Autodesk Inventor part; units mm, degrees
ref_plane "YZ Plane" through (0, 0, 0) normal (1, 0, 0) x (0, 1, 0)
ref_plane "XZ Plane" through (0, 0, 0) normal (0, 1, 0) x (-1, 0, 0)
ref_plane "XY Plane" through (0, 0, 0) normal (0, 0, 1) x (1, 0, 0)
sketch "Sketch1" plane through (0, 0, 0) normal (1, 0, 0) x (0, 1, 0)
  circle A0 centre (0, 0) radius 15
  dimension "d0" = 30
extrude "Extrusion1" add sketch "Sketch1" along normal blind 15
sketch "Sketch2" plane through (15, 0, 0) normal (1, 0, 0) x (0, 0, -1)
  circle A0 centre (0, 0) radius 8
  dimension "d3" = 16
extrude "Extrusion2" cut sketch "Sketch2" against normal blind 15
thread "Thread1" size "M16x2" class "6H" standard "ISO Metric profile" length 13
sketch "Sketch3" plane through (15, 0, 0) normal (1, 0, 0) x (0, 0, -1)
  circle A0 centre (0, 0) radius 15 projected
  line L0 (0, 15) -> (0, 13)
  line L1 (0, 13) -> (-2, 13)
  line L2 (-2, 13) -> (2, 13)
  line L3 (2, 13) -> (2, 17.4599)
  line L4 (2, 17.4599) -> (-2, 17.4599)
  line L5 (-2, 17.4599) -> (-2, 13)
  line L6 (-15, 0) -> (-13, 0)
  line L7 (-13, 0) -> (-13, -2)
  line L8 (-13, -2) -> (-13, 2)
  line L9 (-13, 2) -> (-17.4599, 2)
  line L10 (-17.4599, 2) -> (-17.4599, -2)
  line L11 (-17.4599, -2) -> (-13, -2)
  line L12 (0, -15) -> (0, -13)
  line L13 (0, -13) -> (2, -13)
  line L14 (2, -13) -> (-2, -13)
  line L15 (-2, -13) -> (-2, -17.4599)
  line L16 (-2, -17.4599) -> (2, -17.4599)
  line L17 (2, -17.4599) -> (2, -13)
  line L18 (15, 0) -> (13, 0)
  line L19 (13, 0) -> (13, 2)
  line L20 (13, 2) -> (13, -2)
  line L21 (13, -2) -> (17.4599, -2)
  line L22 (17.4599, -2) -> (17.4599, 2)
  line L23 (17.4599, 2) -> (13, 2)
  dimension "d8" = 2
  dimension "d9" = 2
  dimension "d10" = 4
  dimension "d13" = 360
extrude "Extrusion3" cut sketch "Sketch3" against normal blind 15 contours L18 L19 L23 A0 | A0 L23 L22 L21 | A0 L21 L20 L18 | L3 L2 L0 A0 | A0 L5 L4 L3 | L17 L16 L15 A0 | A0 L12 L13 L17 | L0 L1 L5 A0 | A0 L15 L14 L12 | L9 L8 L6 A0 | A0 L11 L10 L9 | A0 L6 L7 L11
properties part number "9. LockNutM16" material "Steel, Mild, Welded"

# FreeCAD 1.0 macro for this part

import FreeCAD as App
import Part
import Sketcher

V = App.Vector
Q = App.Units.Quantity


def add_polygon(sketch, points):
    """Adds a closed chain of lines whose ends are joined by coincident constraints."""
    first, n = sketch.GeometryCount, len(points)
    for a, b in zip(points, points[1:] + points[:1]):
        sketch.addGeometry(Part.LineSegment(App.Vector(*a, 0), App.Vector(*b, 0)), False)
    for i in range(n):
        sketch.addConstraint(Sketcher.Constraint("Coincident", first + i, 2, first + (i + 1) % n, 1))

doc = App.newDocument("Part")
body = doc.addObject("PartDesign::Body", "Body")

sketch1 = body.newObject("Sketcher::SketchObject", "Sketch")
sketch1.AttachmentSupport = (doc.getObject("YZ_Plane"), [""])
sketch1.MapMode = "FlatFace"
sketch1.addGeometry(Part.Circle(V(0, 0, 0), V(0, 0, 1), 15), False)
sketch1.addConstraint(Sketcher.Constraint("Coincident", 0, 3, -1, 1))
sketch1.addConstraint(Sketcher.Constraint("Diameter", 0, Q("30 mm")))
pad1 = body.newObject("PartDesign::Pad", "Pad")
pad1.Profile = sketch1
pad1.Length = 15

sketch2 = body.newObject("Sketcher::SketchObject", "Sketch001")
sketch2.AttachmentSupport = (doc.getObject("YZ_Plane"), [""])
sketch2.MapMode = "FlatFace"
sketch2.AttachmentOffset = App.Placement(V(0, 0, 15), App.Rotation())
sketch2.addGeometry(Part.Circle(V(0, 0, 0), V(0, 0, 1), 8), False)
sketch2.addConstraint(Sketcher.Constraint("Coincident", 0, 3, -1, 1))
sketch2.addConstraint(Sketcher.Constraint("Diameter", 0, Q("16 mm")))
pocket1 = body.newObject("PartDesign::Pocket", "Pocket")
pocket1.Profile = sketch2
pocket1.Length = 15

sketch3 = body.newObject("Sketcher::SketchObject", "Sketch002")
sketch3.AttachmentSupport = (doc.getObject("YZ_Plane"), [""])
sketch3.MapMode = "FlatFace"
sketch3.AttachmentOffset = App.Placement(V(0, 0, 15), App.Rotation())
add_polygon(sketch3, [(2, -13), (-2, -13), (-2, -17.5), (2, -17.5)])
add_polygon(sketch3, [(13, -2), (17.5, -2), (17.5, 2), (13, 2)])
add_polygon(sketch3, [(-17.5, -2), (-13, -2), (-13, 2), (-17.5, 2)])
add_polygon(sketch3, [(2, 13), (2, 17.5), (-2, 17.5), (-2, 13)])
sketch3.addConstraint(Sketcher.Constraint("Horizontal", 0))
sketch3.addConstraint(Sketcher.Constraint("Vertical", 1))
sketch3.addConstraint(Sketcher.Constraint("Horizontal", 2))
sketch3.addConstraint(Sketcher.Constraint("Vertical", 3))
sketch3.addConstraint(Sketcher.Constraint("Horizontal", 4))
sketch3.addConstraint(Sketcher.Constraint("Vertical", 5))
sketch3.addConstraint(Sketcher.Constraint("Horizontal", 6))
sketch3.addConstraint(Sketcher.Constraint("Vertical", 7))
sketch3.addConstraint(Sketcher.Constraint("Horizontal", 8))
sketch3.addConstraint(Sketcher.Constraint("Vertical", 9))
sketch3.addConstraint(Sketcher.Constraint("Horizontal", 10))
sketch3.addConstraint(Sketcher.Constraint("Vertical", 11))
sketch3.addConstraint(Sketcher.Constraint("Vertical", 12))
sketch3.addConstraint(Sketcher.Constraint("Horizontal", 13))
sketch3.addConstraint(Sketcher.Constraint("Vertical", 14))
sketch3.addConstraint(Sketcher.Constraint("Horizontal", 15))
sketch3.addConstraint(Sketcher.Constraint("Symmetric", 6, 2, 8, 2, -1, 1))
sketch3.addConstraint(Sketcher.Constraint("Symmetric", 4, 2, 10, 2, -1, 1))
sketch3.addConstraint(Sketcher.Constraint("Symmetric", 1, 2, 12, 2, -1, 1))
sketch3.addConstraint(Sketcher.Constraint("Symmetric", 3, 2, 14, 2, -1, 1))
sketch3.addConstraint(Sketcher.Constraint("Horizontal", 7, 2, 8, 2))
sketch3.addConstraint(Sketcher.Constraint("Vertical", 3, 2, 12, 2))
sketch3.addConstraint(Sketcher.Constraint("Equal", 10, 1))
sketch3.addConstraint(Sketcher.Constraint("Equal", 15, 5))
sketch3.addConstraint(Sketcher.Constraint("DistanceX", 0, 2, 0, 1, Q("4 mm")))
sketch3.addConstraint(Sketcher.Constraint("DistanceY", 0, 2, -1, 1, Q("13 mm")))
sketch3.addConstraint(Sketcher.Constraint("DistanceX", -1, 1, 6, 2, Q("13 mm")))
sketch3.addConstraint(Sketcher.Constraint("DistanceX", 4, 1, 4, 2, Q("4.46 mm")))
pocket2 = body.newObject("PartDesign::Pocket", "Pocket001")
pocket2.Profile = sketch3
pocket2.Length = 15

doc.recompute()
